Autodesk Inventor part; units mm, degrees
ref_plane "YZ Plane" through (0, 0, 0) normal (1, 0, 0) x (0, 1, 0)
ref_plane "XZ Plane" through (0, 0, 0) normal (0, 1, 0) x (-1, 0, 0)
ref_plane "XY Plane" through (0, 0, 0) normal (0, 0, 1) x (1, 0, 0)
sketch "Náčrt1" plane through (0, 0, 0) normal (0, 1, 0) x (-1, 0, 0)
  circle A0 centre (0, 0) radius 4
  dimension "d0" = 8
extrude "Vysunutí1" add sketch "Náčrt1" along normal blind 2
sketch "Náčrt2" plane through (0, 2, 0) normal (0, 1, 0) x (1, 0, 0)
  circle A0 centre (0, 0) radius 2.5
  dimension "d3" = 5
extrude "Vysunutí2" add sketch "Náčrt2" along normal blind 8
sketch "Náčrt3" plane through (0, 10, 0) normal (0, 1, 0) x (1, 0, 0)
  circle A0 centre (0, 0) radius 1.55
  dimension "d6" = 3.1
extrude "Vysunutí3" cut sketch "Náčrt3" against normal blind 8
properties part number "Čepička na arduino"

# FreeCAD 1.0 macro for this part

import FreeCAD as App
import Part
import Sketcher
Q = App.Units.Quantity

doc = App.newDocument("Part")
body = doc.addObject("PartDesign::Body", "Body")

sketch1 = body.newObject("Sketcher::SketchObject", "Sketch")
sketch1.AttachmentSupport = (doc.getObject("XZ_Plane"), [""])
sketch1.MapMode = "FlatFace"
sketch1.addGeometry(Part.Circle(App.Vector(0, 0, 0), App.Vector(0, 0, 1), 4), False)
sketch1.addConstraint([
    Sketcher.Constraint("Coincident", 0, 3, -1, 1),
    Sketcher.Constraint("Diameter", 0, Q("8 mm")),
])
pad1 = body.newObject("PartDesign::Pad", "Pad")
pad1.Profile = sketch1
pad1.Length = 2
pad1.Reversed = True

sketch2 = body.newObject("Sketcher::SketchObject", "Sketch001")
sketch2.AttachmentSupport = (doc.getObject("XZ_Plane"), [""])
sketch2.MapMode = "FlatFace"
sketch2.AttachmentOffset = App.Placement(App.Vector(0, 0, -2), App.Rotation())
sketch2.addGeometry(Part.Circle(App.Vector(0, 0, 0), App.Vector(0, 0, 1), 2.5), False)
sketch2.addConstraint([
    Sketcher.Constraint("Coincident", 0, 3, -1, 1),
    Sketcher.Constraint("Diameter", 0, Q("5 mm")),
])
pad2 = body.newObject("PartDesign::Pad", "Pad001")
pad2.Profile = sketch2
pad2.Length = 8
pad2.Reversed = True

sketch3 = body.newObject("Sketcher::SketchObject", "Sketch002")
sketch3.AttachmentSupport = (doc.getObject("XZ_Plane"), [""])
sketch3.MapMode = "FlatFace"
sketch3.AttachmentOffset = App.Placement(App.Vector(0, 0, -10), App.Rotation())
sketch3.addGeometry(Part.Circle(App.Vector(0, 0, 0), App.Vector(0, 0, 1), 1.6), False)
sketch3.addConstraint([
    Sketcher.Constraint("Coincident", 0, 3, -1, 1),
    Sketcher.Constraint("Diameter", 0, Q("3.1 mm")),
])
pocket1 = body.newObject("PartDesign::Pocket", "Pocket")
pocket1.Profile = sketch3
pocket1.Length = 8
pocket1.Reversed = True

doc.recompute()
